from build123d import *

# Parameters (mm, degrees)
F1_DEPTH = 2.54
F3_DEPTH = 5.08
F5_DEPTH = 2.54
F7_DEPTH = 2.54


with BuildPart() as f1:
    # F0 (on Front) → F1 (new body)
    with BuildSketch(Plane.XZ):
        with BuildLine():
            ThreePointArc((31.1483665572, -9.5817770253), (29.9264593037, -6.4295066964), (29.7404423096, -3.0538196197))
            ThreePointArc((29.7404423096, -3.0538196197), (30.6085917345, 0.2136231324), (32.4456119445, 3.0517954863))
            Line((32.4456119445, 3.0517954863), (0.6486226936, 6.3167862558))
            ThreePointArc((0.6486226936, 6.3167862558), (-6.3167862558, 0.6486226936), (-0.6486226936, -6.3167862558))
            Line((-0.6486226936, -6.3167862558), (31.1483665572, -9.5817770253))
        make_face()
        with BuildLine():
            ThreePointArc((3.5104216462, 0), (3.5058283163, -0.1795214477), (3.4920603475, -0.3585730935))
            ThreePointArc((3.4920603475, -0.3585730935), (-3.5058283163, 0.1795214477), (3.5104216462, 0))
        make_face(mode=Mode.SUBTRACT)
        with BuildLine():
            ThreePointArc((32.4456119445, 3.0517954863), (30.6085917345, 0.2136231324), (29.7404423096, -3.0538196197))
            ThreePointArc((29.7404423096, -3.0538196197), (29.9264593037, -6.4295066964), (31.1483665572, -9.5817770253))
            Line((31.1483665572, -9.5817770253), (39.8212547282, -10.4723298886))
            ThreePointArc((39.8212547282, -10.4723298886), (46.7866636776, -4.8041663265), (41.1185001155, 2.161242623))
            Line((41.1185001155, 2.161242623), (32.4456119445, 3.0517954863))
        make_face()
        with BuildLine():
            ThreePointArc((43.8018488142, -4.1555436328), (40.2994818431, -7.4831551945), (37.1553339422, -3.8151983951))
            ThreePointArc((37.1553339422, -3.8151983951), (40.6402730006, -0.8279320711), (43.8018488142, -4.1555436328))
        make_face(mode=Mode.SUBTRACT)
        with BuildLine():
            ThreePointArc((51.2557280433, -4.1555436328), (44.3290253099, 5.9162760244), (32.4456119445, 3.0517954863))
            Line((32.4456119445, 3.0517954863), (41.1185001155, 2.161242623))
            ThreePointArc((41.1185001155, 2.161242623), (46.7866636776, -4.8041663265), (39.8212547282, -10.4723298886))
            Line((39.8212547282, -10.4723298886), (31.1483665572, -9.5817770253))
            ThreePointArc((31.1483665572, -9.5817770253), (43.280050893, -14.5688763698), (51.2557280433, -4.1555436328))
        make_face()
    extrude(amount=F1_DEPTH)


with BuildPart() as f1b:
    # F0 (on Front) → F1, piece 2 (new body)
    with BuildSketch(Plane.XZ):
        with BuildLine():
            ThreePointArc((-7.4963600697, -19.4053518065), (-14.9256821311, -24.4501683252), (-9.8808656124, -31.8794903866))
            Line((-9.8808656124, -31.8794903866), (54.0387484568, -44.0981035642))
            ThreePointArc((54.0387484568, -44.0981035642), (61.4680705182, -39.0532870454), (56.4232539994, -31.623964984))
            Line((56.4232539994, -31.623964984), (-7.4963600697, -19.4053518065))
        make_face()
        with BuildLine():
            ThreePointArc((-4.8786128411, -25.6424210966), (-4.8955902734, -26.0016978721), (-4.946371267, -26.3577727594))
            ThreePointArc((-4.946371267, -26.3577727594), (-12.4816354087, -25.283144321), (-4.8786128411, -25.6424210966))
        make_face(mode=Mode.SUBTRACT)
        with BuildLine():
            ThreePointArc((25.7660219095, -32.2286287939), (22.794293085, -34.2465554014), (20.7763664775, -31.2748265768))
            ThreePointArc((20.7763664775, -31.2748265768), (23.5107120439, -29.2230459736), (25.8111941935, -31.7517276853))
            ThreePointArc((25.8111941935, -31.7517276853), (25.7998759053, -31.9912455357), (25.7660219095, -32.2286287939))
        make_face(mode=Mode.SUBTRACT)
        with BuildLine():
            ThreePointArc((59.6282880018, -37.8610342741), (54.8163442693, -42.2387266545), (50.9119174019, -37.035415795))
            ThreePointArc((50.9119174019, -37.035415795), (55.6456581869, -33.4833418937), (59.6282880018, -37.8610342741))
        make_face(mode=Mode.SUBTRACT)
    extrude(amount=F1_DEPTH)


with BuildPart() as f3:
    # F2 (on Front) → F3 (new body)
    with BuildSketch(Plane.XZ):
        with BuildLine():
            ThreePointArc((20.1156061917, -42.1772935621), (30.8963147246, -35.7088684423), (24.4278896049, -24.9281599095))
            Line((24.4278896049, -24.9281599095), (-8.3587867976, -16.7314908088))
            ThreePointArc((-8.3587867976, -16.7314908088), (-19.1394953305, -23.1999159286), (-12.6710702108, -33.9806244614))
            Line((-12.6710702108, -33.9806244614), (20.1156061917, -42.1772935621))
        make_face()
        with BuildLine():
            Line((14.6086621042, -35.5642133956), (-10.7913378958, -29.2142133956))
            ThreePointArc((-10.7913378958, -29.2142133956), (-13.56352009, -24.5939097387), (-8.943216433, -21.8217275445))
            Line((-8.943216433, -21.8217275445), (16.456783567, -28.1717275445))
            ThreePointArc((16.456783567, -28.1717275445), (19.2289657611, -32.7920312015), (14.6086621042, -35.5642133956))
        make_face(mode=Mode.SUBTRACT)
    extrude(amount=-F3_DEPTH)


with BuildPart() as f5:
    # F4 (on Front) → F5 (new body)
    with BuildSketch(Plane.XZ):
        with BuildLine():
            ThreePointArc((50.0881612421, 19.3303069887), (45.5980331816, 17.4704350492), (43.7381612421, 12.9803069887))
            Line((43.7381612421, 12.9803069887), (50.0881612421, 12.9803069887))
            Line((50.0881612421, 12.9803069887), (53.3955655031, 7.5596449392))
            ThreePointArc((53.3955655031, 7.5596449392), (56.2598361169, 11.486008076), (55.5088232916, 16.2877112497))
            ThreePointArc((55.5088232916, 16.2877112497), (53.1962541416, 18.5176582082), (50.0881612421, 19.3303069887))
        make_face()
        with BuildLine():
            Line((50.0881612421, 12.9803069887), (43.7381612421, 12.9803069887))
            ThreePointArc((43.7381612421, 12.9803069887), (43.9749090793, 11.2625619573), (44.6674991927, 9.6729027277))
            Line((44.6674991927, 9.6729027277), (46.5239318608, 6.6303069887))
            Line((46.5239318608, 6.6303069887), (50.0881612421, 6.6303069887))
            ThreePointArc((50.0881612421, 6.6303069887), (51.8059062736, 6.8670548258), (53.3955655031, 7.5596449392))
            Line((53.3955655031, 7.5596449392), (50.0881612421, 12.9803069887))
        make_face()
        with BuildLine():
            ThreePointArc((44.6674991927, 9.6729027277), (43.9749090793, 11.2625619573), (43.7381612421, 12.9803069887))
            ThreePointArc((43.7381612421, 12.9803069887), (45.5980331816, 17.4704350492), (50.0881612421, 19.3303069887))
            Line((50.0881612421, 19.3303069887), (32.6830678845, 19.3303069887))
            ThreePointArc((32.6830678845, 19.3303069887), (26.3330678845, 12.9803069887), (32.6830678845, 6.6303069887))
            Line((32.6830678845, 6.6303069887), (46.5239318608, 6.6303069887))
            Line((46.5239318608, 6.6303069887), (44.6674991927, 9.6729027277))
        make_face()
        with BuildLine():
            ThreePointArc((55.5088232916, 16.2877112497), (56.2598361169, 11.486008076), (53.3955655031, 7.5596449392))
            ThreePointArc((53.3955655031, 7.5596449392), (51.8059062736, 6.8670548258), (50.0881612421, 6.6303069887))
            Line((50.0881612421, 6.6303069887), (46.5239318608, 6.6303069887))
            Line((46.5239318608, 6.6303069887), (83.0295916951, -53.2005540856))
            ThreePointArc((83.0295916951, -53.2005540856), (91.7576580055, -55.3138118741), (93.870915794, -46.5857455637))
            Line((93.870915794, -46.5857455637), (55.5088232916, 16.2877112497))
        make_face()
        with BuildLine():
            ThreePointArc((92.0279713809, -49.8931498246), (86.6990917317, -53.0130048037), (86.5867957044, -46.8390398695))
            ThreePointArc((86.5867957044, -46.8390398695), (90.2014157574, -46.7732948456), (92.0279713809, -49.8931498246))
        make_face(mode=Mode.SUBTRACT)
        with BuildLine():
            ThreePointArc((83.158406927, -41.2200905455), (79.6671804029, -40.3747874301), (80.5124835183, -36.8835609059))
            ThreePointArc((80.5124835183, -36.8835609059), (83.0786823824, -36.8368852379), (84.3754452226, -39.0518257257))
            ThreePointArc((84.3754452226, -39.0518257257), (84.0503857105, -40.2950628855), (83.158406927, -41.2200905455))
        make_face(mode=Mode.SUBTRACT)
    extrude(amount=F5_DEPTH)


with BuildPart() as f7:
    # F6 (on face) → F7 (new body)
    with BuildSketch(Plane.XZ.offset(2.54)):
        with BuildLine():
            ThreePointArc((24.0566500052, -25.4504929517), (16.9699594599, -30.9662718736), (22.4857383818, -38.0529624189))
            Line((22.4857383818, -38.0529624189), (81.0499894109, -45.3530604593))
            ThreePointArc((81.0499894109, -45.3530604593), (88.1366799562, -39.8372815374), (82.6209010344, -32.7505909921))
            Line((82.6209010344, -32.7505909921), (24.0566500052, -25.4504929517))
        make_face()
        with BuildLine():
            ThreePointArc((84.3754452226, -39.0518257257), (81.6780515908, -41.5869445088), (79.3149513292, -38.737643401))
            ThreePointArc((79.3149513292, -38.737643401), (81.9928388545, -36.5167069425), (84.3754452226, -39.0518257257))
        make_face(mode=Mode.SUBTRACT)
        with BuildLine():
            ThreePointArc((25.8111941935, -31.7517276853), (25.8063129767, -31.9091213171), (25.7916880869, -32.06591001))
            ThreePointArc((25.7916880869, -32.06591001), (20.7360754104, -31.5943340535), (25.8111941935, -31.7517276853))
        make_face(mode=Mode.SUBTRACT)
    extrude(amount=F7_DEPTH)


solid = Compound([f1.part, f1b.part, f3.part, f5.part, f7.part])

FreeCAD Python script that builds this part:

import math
import FreeCAD as App
import Part
import Sketcher
from FreeCAD import Vector
Q = App.Units.Quantity

doc = App.newDocument("Part")
body = doc.addObject("PartDesign::Body", "Body")

# Sketch on XZ plane
sketch1 = doc.addObject("Sketcher::SketchObject", "Sketch")
body.addObject(sketch1)
sketch1.AttachmentSupport = (doc.XZ_Plane, [""])
sketch1.MapMode = "FlatFace"
sketch1.addGeometry([
    Part.LineSegment(Vector(-0.65, -6.32, 0), Vector(31.15, -9.58, 0)),  # 0
    Part.ArcOfCircle(Part.Circle(Vector(40.47, -4.16, 0), Vector(0, 0, 1), 10.79), math.radians(-150), math.radians(0)),  # 1
    Part.ArcOfCircle(Part.Circle(Vector(40.47, -4.16, 0), Vector(0, 0, 1), 10.79), math.radians(0), math.radians(138)),  # 2
    Part.LineSegment(Vector(32.45, 3.05, 0), Vector(0.65, 6.32, 0)),  # 3
    Part.ArcOfCircle(Part.Circle(Vector(0, 0, 0), Vector(0, 0, 1), 6.35), math.radians(84), math.radians(264)),  # 4
    Part.ArcOfCircle(Part.Circle(Vector(40.47, -4.16, 0), Vector(0, 0, 1), 3.33), math.radians(0), math.radians(174)),  # 5
    Part.ArcOfCircle(Part.Circle(Vector(40.47, -4.16, 0), Vector(0, 0, 1), 3.33), math.radians(174), math.radians(360)),  # 6
    Part.ArcOfCircle(Part.Circle(Vector(0, 0, 0), Vector(0, 0, 1), 3.51), math.radians(0), math.radians(354)),  # 7
    Part.ArcOfCircle(Part.Circle(Vector(0, 0, 0), Vector(0, 0, 1), 3.51), math.radians(-5.86), math.radians(0)),  # 8
], False)
sketch1.addConstraint([
    Sketcher.Constraint("Coincident", 0, 2, 1, 1),
    Sketcher.Constraint("Tangent", 1, 2, 2, 1),
    Sketcher.Constraint("Coincident", 2, 2, 3, 1),
    Sketcher.Constraint("Tangent", 3, 2, 4, 1),
    Sketcher.Constraint("Tangent", 4, 2, 0, 1),
    Sketcher.Constraint("Tangent", 5, 1, 6, 2),
    Sketcher.Constraint("Coincident", 6, 1, 5, 2),
    Sketcher.Constraint("Tangent", 7, 1, 8, 2),
    Sketcher.Constraint("Coincident", 8, 1, 7, 2),
    Sketcher.Constraint("Coincident", 4, 3, -1, 1),
    Sketcher.Constraint("Coincident", 7, 3, -1, 1),
    Sketcher.Constraint("Coincident", 5, 3, 1, 3),
    Sketcher.Constraint("Equal", 1, 2),
    Sketcher.Constraint("PointOnObject", 7, 1, -1),
    Sketcher.Constraint("Parallel", 0, 3),
    Sketcher.Constraint("Horizontal", 6, 3, 1, 2),
    Sketcher.Constraint("Horizontal", 1, 2, 5, 1),
    Sketcher.Constraint("Equal", 0, 3),
    Sketcher.Constraint("Radius", 4, Q("0.25 in")),
    Sketcher.Constraint("Radius", 1, Q("10.785851 mm")),
    Sketcher.Constraint("Radius", 5, Q("3.331971 mm")),
    Sketcher.Constraint("Radius", 7, Q("3.510422 mm")),
    Sketcher.Constraint("DistanceY", 6, 1, -1, 1, Q("3.815198 mm")),
    Sketcher.Constraint("DistanceX", 3, 2, 7, 1, Q("2.861799 mm")),
    Sketcher.Constraint("Distance", 0, Q("31.964178 mm")),
    Sketcher.Constraint("DistanceX", -1, 1, 8, 1, Q("3.49206 mm")),
])
pad1 = doc.addObject("PartDesign::Pad", "Pad")
body.addObject(pad1)
pad1.Profile = sketch1
pad1.Length = Q("0.1 in")
body2 = doc.addObject("PartDesign::Body", "Body001")

# Sketch on XZ plane
sketch2 = doc.addObject("Sketcher::SketchObject", "Sketch001")
body2.addObject(sketch2)
sketch2.AttachmentSupport = (doc.getObject("XZ_Plane001"), [""])
sketch2.MapMode = "FlatFace"
sketch2.addGeometry([
    Part.ArcOfCircle(Part.Circle(Vector(-8.69, -25.64, 0), Vector(0, 0, 1), 6.35), math.radians(79), math.radians(259)),  # 0
    Part.LineSegment(Vector(-9.88, -31.88, 0), Vector(54.04, -44.1, 0)),  # 1
    Part.ArcOfCircle(Part.Circle(Vector(55.23, -37.86, 0), Vector(0, 0, 1), 6.35), math.radians(-101), math.radians(79)),  # 2
    Part.LineSegment(Vector(56.42, -31.62, 0), Vector(-7.5, -19.41, 0)),  # 3
    Part.ArcOfCircle(Part.Circle(Vector(55.23, -37.86, 0), Vector(0, 0, 1), 4.4), math.radians(0), math.radians(169)),  # 4
    Part.ArcOfCircle(Part.Circle(Vector(55.23, -37.86, 0), Vector(0, 0, 1), 4.4), math.radians(169), math.radians(360)),  # 5
    Part.ArcOfCircle(Part.Circle(Vector(23.27, -31.75, 0), Vector(0, 0, 1), 2.54), math.radians(-10.82), math.radians(0)),  # 6
    Part.ArcOfCircle(Part.Circle(Vector(23.27, -31.75, 0), Vector(0, 0, 1), 2.54), math.radians(169), math.radians(349)),  # 7
    Part.ArcOfCircle(Part.Circle(Vector(23.27, -31.75, 0), Vector(0, 0, 1), 2.54), math.radians(0), math.radians(169)),  # 8
    Part.ArcOfCircle(Part.Circle(Vector(-8.69, -25.64, 0), Vector(0, 0, 1), 3.81), math.radians(0), math.radians(349)),  # 9
    Part.ArcOfCircle(Part.Circle(Vector(-8.69, -25.64, 0), Vector(0, 0, 1), 3.81), math.radians(-10.82), math.radians(0)),  # 10
], False)
sketch2.addConstraint([
    Sketcher.Constraint("Tangent", 0, 2, 1, 1),
    Sketcher.Constraint("Tangent", 1, 2, 2, 1),
    Sketcher.Constraint("Tangent", 2, 2, 3, 1),
    Sketcher.Constraint("Tangent", 3, 2, 0, 1),
    Sketcher.Constraint("Tangent", 4, 1, 5, 2),
    Sketcher.Constraint("Coincident", 5, 1, 4, 2),
    Sketcher.Constraint("Tangent", 6, 1, 7, 2),
    Sketcher.Constraint("Tangent", 7, 1, 8, 2),
    Sketcher.Constraint("Tangent", 8, 1, 6, 2),
    Sketcher.Constraint("Tangent", 9, 1, 10, 2),
    Sketcher.Constraint("Coincident", 10, 1, 9, 2),
    Sketcher.Constraint("Coincident", 4, 3, 2, 3),
    Sketcher.Constraint("Coincident", 9, 3, 0, 3),
    Sketcher.Constraint("Equal", 0, 2),
    Sketcher.Constraint("Horizontal", 5, 3, 4, 1),
    Sketcher.Constraint("Horizontal", 7, 3, 8, 1),
    Sketcher.Constraint("Horizontal", 10, 3, 9, 1),
    Sketcher.Constraint("Radius", 6, Q("0.1 in")),
    Sketcher.Constraint("Radius", 0, Q("0.25 in")),
    Sketcher.Constraint("Radius", 9, Q("0.15 in")),
    Sketcher.Constraint("Radius", 4, Q("4.397287 mm")),
    Sketcher.Constraint("DistanceX", -1, 1, 2, 3, Q("55.231001 mm")),
    Sketcher.Constraint("DistanceY", 6, 1, 6, 3, Q("0.476901 mm")),
    Sketcher.Constraint("DistanceY", 7, 3, 7, 1, Q("0.476901 mm")),
    Sketcher.Constraint("DistanceY", 0, 3, -1, 1, Q("25.642421 mm")),
    Sketcher.Constraint("DistanceY", 0, 2, -1, 1, Q("31.87949 mm")),
    Sketcher.Constraint("DistanceX", 3, 2, -1, 1, Q("7.49636 mm")),
    Sketcher.Constraint("DistanceX", -1, 1, 6, 1, Q("25.766022 mm")),
    Sketcher.Constraint("DistanceY", 6, 1, -1, 1, Q("32.228629 mm")),
    Sketcher.Constraint("DistanceX", 10, 1, -1, 1, Q("4.946371 mm")),
    Sketcher.Constraint("DistanceY", 2, 3, 5, 1, Q("0.825618 mm")),
])
pad2 = doc.addObject("PartDesign::Pad", "Pad001")
body2.addObject(pad2)
pad2.Profile = sketch2
pad2.Length = Q("0.1 in")
body3 = doc.addObject("PartDesign::Body", "Body002")

# Sketch on XZ plane
sketch3 = doc.addObject("Sketcher::SketchObject", "Sketch002")
body3.addObject(sketch3)
sketch3.AttachmentSupport = (doc.getObject("XZ_Plane002"), [""])
sketch3.MapMode = "FlatFace"
sketch3.addGeometry([
    Part.ArcOfCircle(Part.Circle(Vector(22.3, -33.6, 0), Vector(0, 0, 1), 8.9), math.radians(-104), math.radians(76)),  # 0
    Part.LineSegment(Vector(24.4, -24.9, 0), Vector(-8.4, -16.7, 0)),  # 1
    Part.ArcOfCircle(Part.Circle(Vector(-10.5, -25.4, 0), Vector(0, 0, 1), 8.9), math.radians(76), math.radians(256)),  # 2
    Part.LineSegment(Vector(-12.7, -34, 0), Vector(20.1, -42.2, 0)),  # 3
    Part.ArcOfCircle(Part.Circle(Vector(15.5, -31.9, 0), Vector(0, 0, 1), 3.8), math.radians(-104), math.radians(76)),  # 4
    Part.LineSegment(Vector(14.6, -35.6, 0), Vector(-10.8, -29.2, 0)),  # 5
    Part.ArcOfCircle(Part.Circle(Vector(-9.9, -25.5, 0), Vector(0, 0, 1), 3.8), math.radians(76), math.radians(256)),  # 6
    Part.LineSegment(Vector(-8.9, -21.8, 0), Vector(16.5, -28.2, 0)),  # 7
], False)
sketch3.addConstraint([
    Sketcher.Constraint("Tangent", 0, 2, 1, 1),
    Sketcher.Constraint("Tangent", 1, 2, 2, 1),
    Sketcher.Constraint("Tangent", 2, 2, 3, 1),
    Sketcher.Constraint("Tangent", 3, 2, 0, 1),
    Sketcher.Constraint("Tangent", 4, 1, 5, 1),
    Sketcher.Constraint("Tangent", 5, 2, 6, 2),
    Sketcher.Constraint("Tangent", 6, 1, 7, 1),
    Sketcher.Constraint("Tangent", 7, 2, 4, 2),
    Sketcher.Constraint("Equal", 0, 2),
    Sketcher.Constraint("Equal", 4, 6),
    Sketcher.Constraint("Parallel", 3, 5),
    Sketcher.Constraint("Radius", 0, Q("0.35 in")),
    Sketcher.Constraint("Radius", 4, Q("0.15 in")),
    Sketcher.Constraint("DistanceX", 6, 3, 4, 3, Q("1 in")),
    Sketcher.Constraint("DistanceY", 4, 3, 6, 3, Q("0.25 in")),
    Sketcher.Constraint("DistanceY", 0, 3, 7, 2, Q("5.380999 mm")),
    Sketcher.Constraint("DistanceX", 2, 3, -1, 1, Q("10.514929 mm")),
    Sketcher.Constraint("DistanceY", 4, 3, -1, 1, Q("31.86797 mm")),
    Sketcher.Constraint("DistanceX", -1, 1, 0, 2, Q("24.42789 mm")),
    Sketcher.Constraint("DistanceX", 2, 3, 4, 3, Q("26.047651 mm")),
])
pad3 = doc.addObject("PartDesign::Pad", "Pad002")
body3.addObject(pad3)
pad3.Profile = sketch3
pad3.Length = Q("0.2 in")
pad3.Reversed = True
body4 = doc.addObject("PartDesign::Body", "Body003")

# Sketch on XZ plane
sketch4 = doc.addObject("Sketcher::SketchObject", "Sketch003")
body4.addObject(sketch4)
sketch4.AttachmentSupport = (doc.getObject("XZ_Plane003"), [""])
sketch4.MapMode = "FlatFace"
sketch4.addGeometry([
    Part.ArcOfCircle(Part.Circle(Vector(50.1, 13, 0), Vector(0, 0, 1), 6.3), math.radians(31), math.radians(90)),  # 0
    Part.LineSegment(Vector(50.1, 19.3, 0), Vector(32.7, 19.3, 0)),  # 1
    Part.ArcOfCircle(Part.Circle(Vector(32.7, 13, 0), Vector(0, 0, 1), 6.3), math.radians(90), math.radians(270)),  # 2
    Part.LineSegment(Vector(32.7, 6.6, 0), Vector(46.5, 6.6, 0)),  # 3
    Part.LineSegment(Vector(46.5, 6.6, 0), Vector(83, -53.2, 0)),  # 4
    Part.ArcOfCircle(Part.Circle(Vector(88.5, -49.9, 0), Vector(0, 0, 1), 6.3), math.radians(-149), math.radians(31)),  # 5
    Part.LineSegment(Vector(93.9, -46.6, 0), Vector(55.5, 16.3, 0)),  # 6
    Part.ArcOfCircle(Part.Circle(Vector(88.5, -49.9, 0), Vector(0, 0, 1), 3.6), math.radians(0), math.radians(121)),  # 7
    Part.ArcOfCircle(Part.Circle(Vector(88.5, -49.9, 0), Vector(0, 0, 1), 3.6), math.radians(121), math.radians(360)),  # 8
    Part.ArcOfCircle(Part.Circle(Vector(81.8, -39.1, 0), Vector(0, 0, 1), 2.5), math.radians(-59), math.radians(0)),  # 9
    Part.ArcOfCircle(Part.Circle(Vector(81.8, -39.1, 0), Vector(0, 0, 1), 2.5), math.radians(121), math.radians(301)),  # 10
    Part.ArcOfCircle(Part.Circle(Vector(81.8, -39.1, 0), Vector(0, 0, 1), 2.5), math.radians(0), math.radians(121)),  # 11
], False)
sketch4.addConstraint([
    Sketcher.Constraint("Tangent", 0, 2, 1, 1),
    Sketcher.Constraint("Tangent", 1, 2, 2, 1),
    Sketcher.Constraint("Tangent", 2, 2, 3, 1),
    Sketcher.Constraint("Coincident", 3, 2, 4, 1),
    Sketcher.Constraint("Tangent", 4, 2, 5, 1),
    Sketcher.Constraint("Tangent", 5, 2, 6, 1),
    Sketcher.Constraint("Tangent", 6, 2, 0, 1),
    Sketcher.Constraint("Tangent", 7, 1, 8, 2),
    Sketcher.Constraint("Coincident", 8, 1, 7, 2),
    Sketcher.Constraint("Tangent", 9, 1, 10, 2),
    Sketcher.Constraint("Tangent", 10, 1, 11, 2),
    Sketcher.Constraint("Tangent", 11, 1, 9, 2),
    Sketcher.Constraint("Horizontal", 1),
    Sketcher.Constraint("Horizontal", 3),
    Sketcher.Constraint("Coincident", 7, 3, 5, 3),
    Sketcher.Constraint("Equal", 0, 2),
    Sketcher.Constraint("Equal", 2, 5),
    Sketcher.Constraint("Parallel", 4, 6),
    Sketcher.Constraint("Horizontal", 8, 3, 7, 1),
    Sketcher.Constraint("Horizontal", 10, 3, 11, 1),
    Sketcher.Constraint("Radius", 9, Q("0.1 in")),
    Sketcher.Constraint("Radius", 0, Q("0.25 in")),
    Sketcher.Constraint("Radius", 7, Q("3.577718 mm")),
    Sketcher.Constraint("Distance", 4, Q("70.088481 mm")),
    Sketcher.Constraint("Distance", 6, Q("73.65271 mm")),
    Sketcher.Constraint("DistanceX", 1, 2, 1, 1, Q("17.405093 mm")),
    Sketcher.Constraint("DistanceX", -1, 1, 0, 3, Q("50.088161 mm")),
    Sketcher.Constraint("DistanceY", 5, 3, -1, 1, Q("49.89315 mm")),
    Sketcher.Constraint("DistanceY", 8, 1, -1, 1, Q("46.83904 mm")),
    Sketcher.Constraint("DistanceY", 9, 1, -1, 1, Q("41.220091 mm")),
    Sketcher.Constraint("DistanceY", 10, 1, -1, 1, Q("36.883561 mm")),
    Sketcher.Constraint("DistanceX", 9, 3, 5, 3, Q("6.614809 mm")),
    Sketcher.Constraint("DistanceY", 4, 2, 9, 3, Q("14.148728 mm")),
])
pad4 = doc.addObject("PartDesign::Pad", "Pad003")
body4.addObject(pad4)
pad4.Profile = sketch4
pad4.Length = Q("0.1 in")
body5 = doc.addObject("PartDesign::Body", "Body004")

# Sketch on XZ plane
sketch5 = doc.addObject("Sketcher::SketchObject", "Sketch004")
body5.addObject(sketch5)
sketch5.AttachmentSupport = (doc.getObject("XZ_Plane004"), [""])
sketch5.MapMode = "FlatFace"
sketch5.AttachmentOffset = App.Placement(Vector(0, 0, 0.1 * 25.4), App.Rotation())
sketch5.addGeometry([
    Part.ArcOfCircle(Part.Circle(Vector(23.27, -31.75, 0), Vector(0, 0, 1), 6.35), math.radians(83), math.radians(263)),  # 0
    Part.LineSegment(Vector(22.49, -38.05, 0), Vector(81.05, -45.35, 0)),  # 1
    Part.ArcOfCircle(Part.Circle(Vector(81.84, -39.05, 0), Vector(0, 0, 1), 6.35), math.radians(-97), math.radians(83)),  # 2
    Part.LineSegment(Vector(82.62, -32.75, 0), Vector(24.06, -25.45, 0)),  # 3
    Part.ArcOfCircle(Part.Circle(Vector(81.84, -39.05, 0), Vector(0, 0, 1), 2.54), math.radians(0), math.radians(173)),  # 4
    Part.ArcOfCircle(Part.Circle(Vector(81.84, -39.05, 0), Vector(0, 0, 1), 2.54), math.radians(173), math.radians(360)),  # 5
    Part.ArcOfCircle(Part.Circle(Vector(23.27, -31.75, 0), Vector(0, 0, 1), 2.54), math.radians(0), math.radians(353)),  # 6
    Part.ArcOfCircle(Part.Circle(Vector(23.27, -31.75, 0), Vector(0, 0, 1), 2.54), math.radians(-7.11), math.radians(0)),  # 7
], False)
sketch5.addConstraint([
    Sketcher.Constraint("Tangent", 0, 2, 1, 1),
    Sketcher.Constraint("Tangent", 1, 2, 2, 1),
    Sketcher.Constraint("Tangent", 2, 2, 3, 1),
    Sketcher.Constraint("Tangent", 3, 2, 0, 1),
    Sketcher.Constraint("Tangent", 4, 1, 5, 2),
    Sketcher.Constraint("Coincident", 5, 1, 4, 2),
    Sketcher.Constraint("Tangent", 6, 1, 7, 2),
    Sketcher.Constraint("Coincident", 7, 1, 6, 2),
    Sketcher.Constraint("Coincident", 4, 3, 2, 3),
    Sketcher.Constraint("Coincident", 6, 3, 0, 3),
    Sketcher.Constraint("Equal", 0, 2),
    Sketcher.Constraint("Equal", 5, 6),
    Sketcher.Constraint("Horizontal", 5, 3, 4, 1),
    Sketcher.Constraint("Horizontal", 7, 3, 6, 1),
    Sketcher.Constraint("Radius", 4, Q("0.1 in")),
    Sketcher.Constraint("Radius", 0, Q("0.25 in")),
    Sketcher.Constraint("DistanceX", -1, 1, 2, 2, Q("82.620901 mm")),
    Sketcher.Constraint("DistanceY", 2, 3, 0, 3, Q("7.300098 mm")),
    Sketcher.Constraint("Distance", 1, Q("59.01748 mm")),
    Sketcher.Constraint("DistanceY", 1, 2, -1, 1, Q("45.35306 mm")),
    Sketcher.Constraint("DistanceX", -1, 1, 5, 1, Q("79.314951 mm")),
    Sketcher.Constraint("DistanceX", -1, 1, 7, 1, Q("25.791688 mm")),
])
pad5 = doc.addObject("PartDesign::Pad", "Pad004")
body5.addObject(pad5)
pad5.Profile = sketch5
pad5.Length = Q("0.1 in")

doc.recompute()
